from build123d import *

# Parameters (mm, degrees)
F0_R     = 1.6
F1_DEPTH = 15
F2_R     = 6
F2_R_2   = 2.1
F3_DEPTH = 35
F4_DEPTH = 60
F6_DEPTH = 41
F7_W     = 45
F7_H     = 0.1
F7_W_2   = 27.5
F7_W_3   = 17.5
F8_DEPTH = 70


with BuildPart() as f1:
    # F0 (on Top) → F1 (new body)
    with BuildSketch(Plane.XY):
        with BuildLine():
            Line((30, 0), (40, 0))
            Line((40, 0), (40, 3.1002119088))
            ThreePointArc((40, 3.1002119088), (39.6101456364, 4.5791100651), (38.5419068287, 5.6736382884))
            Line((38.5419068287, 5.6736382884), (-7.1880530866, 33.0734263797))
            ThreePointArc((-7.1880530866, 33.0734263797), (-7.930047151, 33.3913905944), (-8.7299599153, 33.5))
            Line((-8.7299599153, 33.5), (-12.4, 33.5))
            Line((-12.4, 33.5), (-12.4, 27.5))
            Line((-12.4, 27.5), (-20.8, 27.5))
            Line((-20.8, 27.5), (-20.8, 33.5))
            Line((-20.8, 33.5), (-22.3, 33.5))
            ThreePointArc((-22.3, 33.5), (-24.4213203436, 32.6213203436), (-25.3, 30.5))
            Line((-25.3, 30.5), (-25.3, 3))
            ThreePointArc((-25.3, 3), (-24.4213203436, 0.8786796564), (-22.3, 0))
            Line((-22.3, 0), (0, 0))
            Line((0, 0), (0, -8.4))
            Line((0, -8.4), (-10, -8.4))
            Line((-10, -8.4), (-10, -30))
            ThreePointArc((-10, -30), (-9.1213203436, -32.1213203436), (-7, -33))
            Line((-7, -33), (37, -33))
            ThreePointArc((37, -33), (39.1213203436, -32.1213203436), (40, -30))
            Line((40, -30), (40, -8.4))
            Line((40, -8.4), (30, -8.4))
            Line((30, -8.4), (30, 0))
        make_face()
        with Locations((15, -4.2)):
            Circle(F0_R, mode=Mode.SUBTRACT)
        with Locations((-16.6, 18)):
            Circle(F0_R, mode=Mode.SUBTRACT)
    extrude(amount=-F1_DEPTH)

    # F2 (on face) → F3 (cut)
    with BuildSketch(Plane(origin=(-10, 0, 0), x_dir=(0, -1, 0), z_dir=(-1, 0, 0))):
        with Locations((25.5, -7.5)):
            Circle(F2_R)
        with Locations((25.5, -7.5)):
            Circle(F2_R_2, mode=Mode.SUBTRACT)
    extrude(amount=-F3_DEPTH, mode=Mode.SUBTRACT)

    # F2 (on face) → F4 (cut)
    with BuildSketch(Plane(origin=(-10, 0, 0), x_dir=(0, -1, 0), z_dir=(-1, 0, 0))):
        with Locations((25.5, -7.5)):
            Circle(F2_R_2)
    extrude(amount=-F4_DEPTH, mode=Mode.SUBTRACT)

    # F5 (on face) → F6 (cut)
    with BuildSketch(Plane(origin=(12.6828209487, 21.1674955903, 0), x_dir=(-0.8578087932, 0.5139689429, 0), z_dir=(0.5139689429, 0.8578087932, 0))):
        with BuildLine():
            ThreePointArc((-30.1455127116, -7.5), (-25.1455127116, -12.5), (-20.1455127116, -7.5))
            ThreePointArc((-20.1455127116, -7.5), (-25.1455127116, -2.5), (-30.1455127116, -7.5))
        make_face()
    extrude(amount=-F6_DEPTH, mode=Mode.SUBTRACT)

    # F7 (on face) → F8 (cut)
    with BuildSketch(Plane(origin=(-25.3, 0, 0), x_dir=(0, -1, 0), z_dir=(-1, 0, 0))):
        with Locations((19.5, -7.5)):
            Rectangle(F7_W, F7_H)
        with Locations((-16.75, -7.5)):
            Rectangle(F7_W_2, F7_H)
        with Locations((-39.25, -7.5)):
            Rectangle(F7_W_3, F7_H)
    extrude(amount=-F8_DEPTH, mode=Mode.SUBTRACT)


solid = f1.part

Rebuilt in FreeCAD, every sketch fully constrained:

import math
import FreeCAD as App
import Part
import Sketcher

doc = App.newDocument("Part")
body = doc.addObject("PartDesign::Body", "Body")
body.AllowCompound = True

sketch1 = body.newObject("Sketcher::SketchObject", "Sketch")
sketch1.AttachmentSupport = (doc.getObject("XY_Plane"), [""])
sketch1.MapMode = "FlatFace"
sketch1.addGeometry([
    Part.LineSegment(App.Vector(30, 0, 0), App.Vector(40, 0, 0)),
    Part.LineSegment(App.Vector(40, 0, 0), App.Vector(40, 3.1, 0)),
    Part.ArcOfCircle(Part.Circle(App.Vector(37, 3.1, 0), App.Vector(0, 0, 1), 3), math.radians(0), math.radians(59)),
    Part.LineSegment(App.Vector(38.5, 5.7, 0), App.Vector(-7.2, 33.1, 0)),
    Part.ArcOfCircle(Part.Circle(App.Vector(-8.7, 30.5, 0), App.Vector(0, 0, 1), 3), math.radians(59), math.radians(90)),
    Part.LineSegment(App.Vector(-8.7, 33.5, 0), App.Vector(-12.4, 33.5, 0)),
    Part.LineSegment(App.Vector(-12.4, 33.5, 0), App.Vector(-12.4, 27.5, 0)),
    Part.LineSegment(App.Vector(-12.4, 27.5, 0), App.Vector(-20.8, 27.5, 0)),
    Part.LineSegment(App.Vector(-20.8, 27.5, 0), App.Vector(-20.8, 33.5, 0)),
    Part.LineSegment(App.Vector(-20.8, 33.5, 0), App.Vector(-22.3, 33.5, 0)),
    Part.ArcOfCircle(Part.Circle(App.Vector(-22.3, 30.5, 0), App.Vector(0, 0, 1), 3), math.radians(90), math.radians(180)),
    Part.LineSegment(App.Vector(-25.3, 30.5, 0), App.Vector(-25.3, 3, 0)),
    Part.ArcOfCircle(Part.Circle(App.Vector(-22.3, 3, 0), App.Vector(0, 0, 1), 3), math.radians(180), math.radians(270)),
    Part.LineSegment(App.Vector(-22.3, 0, 0), App.Vector(0, 0, 0)),
    Part.LineSegment(App.Vector(0, 0, 0), App.Vector(0, -8.4, 0)),
    Part.LineSegment(App.Vector(0, -8.4, 0), App.Vector(-10, -8.4, 0)),
    Part.LineSegment(App.Vector(-10, -8.4, 0), App.Vector(-10, -30, 0)),
    Part.ArcOfCircle(Part.Circle(App.Vector(-7, -30, 0), App.Vector(0, 0, 1), 3), math.radians(180), math.radians(270)),
    Part.LineSegment(App.Vector(-7, -33, 0), App.Vector(37, -33, 0)),
    Part.ArcOfCircle(Part.Circle(App.Vector(37, -30, 0), App.Vector(0, 0, 1), 3), math.radians(-90), math.radians(0)),
    Part.LineSegment(App.Vector(40, -30, 0), App.Vector(40, -8.4, 0)),
    Part.LineSegment(App.Vector(40, -8.4, 0), App.Vector(30, -8.4, 0)),
    Part.LineSegment(App.Vector(30, -8.4, 0), App.Vector(30, 0, 0)),
    Part.Circle(App.Vector(15, -4.2, 0), App.Vector(0, 0, 1), 1.6),
    Part.Circle(App.Vector(-16.6, 18, 0), App.Vector(0, 0, 1), 1.6),
], False)
sketch1.addConstraint([
    Sketcher.Constraint("Coincident", 0, 2, 1, 1),
    Sketcher.Constraint("Tangent", 1, 2, 2, 1),
    Sketcher.Constraint("Tangent", 2, 2, 3, 1),
    Sketcher.Constraint("Tangent", 3, 2, 4, 1),
    Sketcher.Constraint("Tangent", 4, 2, 5, 1),
    Sketcher.Constraint("Coincident", 5, 2, 6, 1),
    Sketcher.Constraint("Coincident", 6, 2, 7, 1),
    Sketcher.Constraint("Coincident", 7, 2, 8, 1),
    Sketcher.Constraint("Coincident", 8, 2, 9, 1),
    Sketcher.Constraint("Tangent", 9, 2, 10, 1),
    Sketcher.Constraint("Tangent", 10, 2, 11, 1),
    Sketcher.Constraint("Tangent", 11, 2, 12, 1),
    Sketcher.Constraint("Tangent", 12, 2, 13, 1),
    Sketcher.Constraint("Coincident", 13, 2, 14, 1),
    Sketcher.Constraint("Coincident", 14, 2, 15, 1),
    Sketcher.Constraint("Coincident", 15, 2, 16, 1),
    Sketcher.Constraint("Tangent", 16, 2, 17, 1),
    Sketcher.Constraint("Tangent", 17, 2, 18, 1),
    Sketcher.Constraint("Tangent", 18, 2, 19, 1),
    Sketcher.Constraint("Tangent", 19, 2, 20, 1),
    Sketcher.Constraint("Coincident", 20, 2, 21, 1),
    Sketcher.Constraint("Coincident", 21, 2, 22, 1),
    Sketcher.Constraint("Coincident", 22, 2, 0, 1),
    Sketcher.Constraint("Horizontal", 0),
    Sketcher.Constraint("Vertical", 1),
    Sketcher.Constraint("Horizontal", 5),
    Sketcher.Constraint("Vertical", 6),
    Sketcher.Constraint("Horizontal", 7),
    Sketcher.Constraint("Vertical", 8),
    Sketcher.Constraint("Horizontal", 9),
    Sketcher.Constraint("Vertical", 11),
    Sketcher.Constraint("Horizontal", 13),
    Sketcher.Constraint("Vertical", 14),
    Sketcher.Constraint("Horizontal", 15),
    Sketcher.Constraint("Vertical", 16),
    Sketcher.Constraint("Horizontal", 18),
    Sketcher.Constraint("Vertical", 20),
    Sketcher.Constraint("Horizontal", 21),
    Sketcher.Constraint("Vertical", 22),
    Sketcher.Constraint("Coincident", 13, 2, -1, 1),
    Sketcher.Constraint("Equal", 2, 4),
    Sketcher.Constraint("Equal", 4, 10),
    Sketcher.Constraint("Equal", 10, 12),
    Sketcher.Constraint("Equal", 12, 17),
    Sketcher.Constraint("Equal", 17, 19),
    Sketcher.Constraint("Equal", 23, 24),
    Sketcher.Constraint("PointOnObject", 0, 2, -1),
    Sketcher.Constraint("Horizontal", 4, 3, 10, 3),
    Sketcher.Constraint("Horizontal", 15, 2, 20, 2),
    Sketcher.Constraint("Vertical", 2, 3, 19, 3),
    Sketcher.Constraint("Equal", 0, 15),
    Sketcher.Constraint("Equal", 7, 14),
    Sketcher.Constraint("Radius", 2, 3.0),
    Sketcher.Constraint("Diameter", 23, 3.2),
    Sketcher.Constraint("DistanceX", 0, 1, 0, 2, 10.0),
    Sketcher.Constraint("DistanceX", 18, 1, 18, 2, 44.0),
    Sketcher.Constraint("DistanceY", 6, 2, 6, 1, 6.0),
    Sketcher.Constraint("DistanceX", 7, 2, 7, 1, 8.4),
    Sketcher.Constraint("DistanceX", 9, 2, 9, 1, 1.5),
    Sketcher.Constraint("DistanceX", 13, 1, 13, 2, 22.3),
    Sketcher.Constraint("DistanceY", 11, 2, 11, 1, 27.5),
    Sketcher.Constraint("DistanceY", 16, 2, 16, 1, 21.6),
    Sketcher.Constraint("DistanceX", -1, 1, 23, 3, 15.0),
    Sketcher.Constraint("DistanceY", -1, 1, 24, 3, 18.0),
    Sketcher.Constraint("DistanceY", 23, 3, -1, 1, 4.2),
    Sketcher.Constraint("DistanceX", 24, 3, -1, 1, 16.6),
    Sketcher.Constraint("Distance", 3, 53.310202),
    Sketcher.Constraint("DistanceX", 5, 2, 5, 1, 3.67004),
])
pad1 = body.newObject("PartDesign::Pad", "Pad")
pad1.Profile = sketch1
pad1.Length = 15
pad1.Reversed = True

sketch2 = body.newObject("Sketcher::SketchObject", "Sketch001")
sketch2.AttachmentSupport = (doc.getObject("YZ_Plane"), [""])
sketch2.MapMode = "FlatFace"
sketch2.AttachmentOffset = App.Placement(App.Vector(0, 0, -10), App.Rotation())
sketch2.addGeometry([
    Part.Circle(App.Vector(-25.5, -7.5, 0), App.Vector(0, 0, 1), 6),
    Part.Circle(App.Vector(-25.5, -7.5, 0), App.Vector(0, 0, 1), 2.1),
], False)
sketch2.addConstraint([
    Sketcher.Constraint("Coincident", 1, 3, 0, 3),
    Sketcher.Constraint("Diameter", 0, 12.0),
    Sketcher.Constraint("Diameter", 1, 4.2),
    Sketcher.Constraint("DistanceX", 0, 3, -1, 1, 25.5),
    Sketcher.Constraint("DistanceY", 0, 3, -1, 1, 7.5),
])
pocket1 = body.newObject("PartDesign::Pocket", "Pocket")
pocket1.Profile = sketch2
pocket1.Length = 35
pocket1.Reversed = True

sketch3 = body.newObject("Sketcher::SketchObject", "Sketch002")
sketch3.AttachmentSupport = (doc.getObject("YZ_Plane"), [""])
sketch3.MapMode = "FlatFace"
sketch3.AttachmentOffset = App.Placement(App.Vector(0, 0, -10), App.Rotation())
sketch3.addGeometry(Part.Circle(App.Vector(-25.5, -7.5, 0), App.Vector(0, 0, 1), 2.1), False)
sketch3.addConstraint([
    Sketcher.Constraint("Diameter", 0, 4.2),
    Sketcher.Constraint("DistanceX", 0, 3, -1, 1, 25.5),
    Sketcher.Constraint("DistanceY", 0, 3, -1, 1, 7.5),
])
pocket2 = body.newObject("PartDesign::Pocket", "Pocket001")
pocket2.Profile = sketch3
pocket2.Length = 60
pocket2.Reversed = True

sketch4 = body.newObject("Sketcher::SketchObject", "Sketch003")
sketch4.Placement = App.Placement(App.Vector(12.682821, 21.167496, 0), App.Rotation(App.Vector(-0.857808793, 0.513968943, 0), App.Vector(0, 0, 1), App.Vector(0.513968943, 0.857808793, 0), "ZXY"))
sketch4.addGeometry(Part.Circle(App.Vector(-25, -7, 0), App.Vector(0, 0, 1), 5), False)
sketch4.addConstraint([
    Sketcher.Constraint("Diameter", 0, 10.0),
    Sketcher.Constraint("DistanceY", 0, 3, -1, 1, 7.5),
    Sketcher.Constraint("DistanceX", 0, 3, -1, 1, 25.145513),
])
pocket3 = body.newObject("PartDesign::Pocket", "Pocket002")
pocket3.Profile = sketch4
pocket3.Length = 41

sketch5 = body.newObject("Sketcher::SketchObject", "Sketch004")
sketch5.AttachmentSupport = (doc.getObject("YZ_Plane"), [""])
sketch5.MapMode = "FlatFace"
sketch5.AttachmentOffset = App.Placement(App.Vector(0, 0, -25.3), App.Rotation())
sketch5.addGeometry([
    Part.LineSegment(App.Vector(-42, -7.55, 0), App.Vector(-42, -7.45, 0)),
    Part.LineSegment(App.Vector(-42, -7.45, 0), App.Vector(48, -7.45, 0)),
    Part.LineSegment(App.Vector(48, -7.45, 0), App.Vector(48, -7.55, 0)),
    Part.LineSegment(App.Vector(48, -7.55, 0), App.Vector(-42, -7.55, 0)),
], False)
sketch5.addConstraint([
    Sketcher.Constraint("Coincident", 0, 2, 1, 1),
    Sketcher.Constraint("Coincident", 1, 2, 2, 1),
    Sketcher.Constraint("Coincident", 2, 2, 3, 1),
    Sketcher.Constraint("Coincident", 3, 2, 0, 1),
    Sketcher.Constraint("Vertical", 0),
    Sketcher.Constraint("Horizontal", 1),
    Sketcher.Constraint("Vertical", 2),
    Sketcher.Constraint("Horizontal", 3),
    Sketcher.Constraint("DistanceX", 1, 1, 1, 2, 90.0),
    Sketcher.Constraint("DistanceY", 0, 1, 0, 2, 0.1),
    Sketcher.Constraint("DistanceX", 0, 2, -1, 1, 42.0),
    Sketcher.Constraint("DistanceY", 0, 2, -1, 1, 7.45),
])
pocket4 = body.newObject("PartDesign::Pocket", "Pocket003")
pocket4.Profile = sketch5
pocket4.Length = 70
pocket4.Reversed = True

doc.recompute()
